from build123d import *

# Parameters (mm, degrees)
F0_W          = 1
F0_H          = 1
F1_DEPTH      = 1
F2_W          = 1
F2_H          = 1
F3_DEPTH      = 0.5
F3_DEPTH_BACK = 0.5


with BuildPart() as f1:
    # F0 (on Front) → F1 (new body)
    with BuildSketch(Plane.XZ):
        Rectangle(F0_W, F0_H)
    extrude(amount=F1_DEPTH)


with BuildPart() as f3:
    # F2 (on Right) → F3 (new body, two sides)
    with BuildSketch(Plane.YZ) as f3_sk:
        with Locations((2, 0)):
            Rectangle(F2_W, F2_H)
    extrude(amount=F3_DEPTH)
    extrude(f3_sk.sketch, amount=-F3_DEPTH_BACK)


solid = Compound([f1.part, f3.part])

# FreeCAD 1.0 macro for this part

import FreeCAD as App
import Part
import Sketcher
from FreeCAD import Vector
Q = App.Units.Quantity


def add_polygon(sketch, points):
    """Adds a closed chain of lines whose ends are joined by coincident constraints."""
    first, n = sketch.GeometryCount, len(points)
    for a, b in zip(points, points[1:] + points[:1]):
        sketch.addGeometry(Part.LineSegment(App.Vector(*a, 0), App.Vector(*b, 0)), False)
    for i in range(n):
        sketch.addConstraint(Sketcher.Constraint("Coincident", first + i, 2, first + (i + 1) % n, 1))

doc = App.newDocument("Part")
body = doc.addObject("PartDesign::Body", "Body")

sketch1 = doc.addObject("Sketcher::SketchObject", "Sketch")
body.addObject(sketch1)
sketch1.AttachmentSupport = (doc.XZ_Plane, [""])
sketch1.MapMode = "FlatFace"
add_polygon(sketch1, [(-0.5, 0.5), (-0.5, -0.5), (0.5, -0.5), (0.5, 0.5)])
sketch1.addConstraint([
    Sketcher.Constraint("Vertical", 0),
    Sketcher.Constraint("Horizontal", 1),
    Sketcher.Constraint("Vertical", 2),
    Sketcher.Constraint("Horizontal", 3),
    Sketcher.Constraint("Symmetric", 0, 2, 2, 2, -1, 1),
    Sketcher.Constraint("Equal", 3, 0),
    Sketcher.Constraint("DistanceX", 1, 1, 1, 2, Q("1 mm")),
])
pad1 = doc.addObject("PartDesign::Pad", "Pad")
body.addObject(pad1)
pad1.Profile = sketch1
pad1.Length = 1
body2 = doc.addObject("PartDesign::Body", "Body001")

sketch2 = doc.addObject("Sketcher::SketchObject", "Sketch001")
body2.addObject(sketch2)
sketch2.AttachmentSupport = (doc.getObject("YZ_Plane001"), [""])
sketch2.MapMode = "FlatFace"
add_polygon(sketch2, [(1.5, 0.5), (1.5, -0.5), (2.5, -0.5), (2.5, 0.5)])
sketch2.addConstraint([
    Sketcher.Constraint("Vertical", 0),
    Sketcher.Constraint("Horizontal", 1),
    Sketcher.Constraint("Vertical", 2),
    Sketcher.Constraint("Horizontal", 3),
    Sketcher.Constraint("Equal", 3, 0),
    Sketcher.Constraint("DistanceX", 1, 1, 1, 2, Q("1 mm")),
    Sketcher.Constraint("DistanceX", -1, 1, 0, 2, Q("1.5 mm")),
    Sketcher.Constraint("DistanceY", 0, 2, -1, 1, Q("0.5 mm")),
])
pad2 = doc.addObject("PartDesign::Pad", "Pad001")
body2.addObject(pad2)
pad2.Profile = sketch2
pad2.Type = "TwoLengths"
pad2.Length = 0.5
pad2.Length2 = 0.5

doc.recompute()
